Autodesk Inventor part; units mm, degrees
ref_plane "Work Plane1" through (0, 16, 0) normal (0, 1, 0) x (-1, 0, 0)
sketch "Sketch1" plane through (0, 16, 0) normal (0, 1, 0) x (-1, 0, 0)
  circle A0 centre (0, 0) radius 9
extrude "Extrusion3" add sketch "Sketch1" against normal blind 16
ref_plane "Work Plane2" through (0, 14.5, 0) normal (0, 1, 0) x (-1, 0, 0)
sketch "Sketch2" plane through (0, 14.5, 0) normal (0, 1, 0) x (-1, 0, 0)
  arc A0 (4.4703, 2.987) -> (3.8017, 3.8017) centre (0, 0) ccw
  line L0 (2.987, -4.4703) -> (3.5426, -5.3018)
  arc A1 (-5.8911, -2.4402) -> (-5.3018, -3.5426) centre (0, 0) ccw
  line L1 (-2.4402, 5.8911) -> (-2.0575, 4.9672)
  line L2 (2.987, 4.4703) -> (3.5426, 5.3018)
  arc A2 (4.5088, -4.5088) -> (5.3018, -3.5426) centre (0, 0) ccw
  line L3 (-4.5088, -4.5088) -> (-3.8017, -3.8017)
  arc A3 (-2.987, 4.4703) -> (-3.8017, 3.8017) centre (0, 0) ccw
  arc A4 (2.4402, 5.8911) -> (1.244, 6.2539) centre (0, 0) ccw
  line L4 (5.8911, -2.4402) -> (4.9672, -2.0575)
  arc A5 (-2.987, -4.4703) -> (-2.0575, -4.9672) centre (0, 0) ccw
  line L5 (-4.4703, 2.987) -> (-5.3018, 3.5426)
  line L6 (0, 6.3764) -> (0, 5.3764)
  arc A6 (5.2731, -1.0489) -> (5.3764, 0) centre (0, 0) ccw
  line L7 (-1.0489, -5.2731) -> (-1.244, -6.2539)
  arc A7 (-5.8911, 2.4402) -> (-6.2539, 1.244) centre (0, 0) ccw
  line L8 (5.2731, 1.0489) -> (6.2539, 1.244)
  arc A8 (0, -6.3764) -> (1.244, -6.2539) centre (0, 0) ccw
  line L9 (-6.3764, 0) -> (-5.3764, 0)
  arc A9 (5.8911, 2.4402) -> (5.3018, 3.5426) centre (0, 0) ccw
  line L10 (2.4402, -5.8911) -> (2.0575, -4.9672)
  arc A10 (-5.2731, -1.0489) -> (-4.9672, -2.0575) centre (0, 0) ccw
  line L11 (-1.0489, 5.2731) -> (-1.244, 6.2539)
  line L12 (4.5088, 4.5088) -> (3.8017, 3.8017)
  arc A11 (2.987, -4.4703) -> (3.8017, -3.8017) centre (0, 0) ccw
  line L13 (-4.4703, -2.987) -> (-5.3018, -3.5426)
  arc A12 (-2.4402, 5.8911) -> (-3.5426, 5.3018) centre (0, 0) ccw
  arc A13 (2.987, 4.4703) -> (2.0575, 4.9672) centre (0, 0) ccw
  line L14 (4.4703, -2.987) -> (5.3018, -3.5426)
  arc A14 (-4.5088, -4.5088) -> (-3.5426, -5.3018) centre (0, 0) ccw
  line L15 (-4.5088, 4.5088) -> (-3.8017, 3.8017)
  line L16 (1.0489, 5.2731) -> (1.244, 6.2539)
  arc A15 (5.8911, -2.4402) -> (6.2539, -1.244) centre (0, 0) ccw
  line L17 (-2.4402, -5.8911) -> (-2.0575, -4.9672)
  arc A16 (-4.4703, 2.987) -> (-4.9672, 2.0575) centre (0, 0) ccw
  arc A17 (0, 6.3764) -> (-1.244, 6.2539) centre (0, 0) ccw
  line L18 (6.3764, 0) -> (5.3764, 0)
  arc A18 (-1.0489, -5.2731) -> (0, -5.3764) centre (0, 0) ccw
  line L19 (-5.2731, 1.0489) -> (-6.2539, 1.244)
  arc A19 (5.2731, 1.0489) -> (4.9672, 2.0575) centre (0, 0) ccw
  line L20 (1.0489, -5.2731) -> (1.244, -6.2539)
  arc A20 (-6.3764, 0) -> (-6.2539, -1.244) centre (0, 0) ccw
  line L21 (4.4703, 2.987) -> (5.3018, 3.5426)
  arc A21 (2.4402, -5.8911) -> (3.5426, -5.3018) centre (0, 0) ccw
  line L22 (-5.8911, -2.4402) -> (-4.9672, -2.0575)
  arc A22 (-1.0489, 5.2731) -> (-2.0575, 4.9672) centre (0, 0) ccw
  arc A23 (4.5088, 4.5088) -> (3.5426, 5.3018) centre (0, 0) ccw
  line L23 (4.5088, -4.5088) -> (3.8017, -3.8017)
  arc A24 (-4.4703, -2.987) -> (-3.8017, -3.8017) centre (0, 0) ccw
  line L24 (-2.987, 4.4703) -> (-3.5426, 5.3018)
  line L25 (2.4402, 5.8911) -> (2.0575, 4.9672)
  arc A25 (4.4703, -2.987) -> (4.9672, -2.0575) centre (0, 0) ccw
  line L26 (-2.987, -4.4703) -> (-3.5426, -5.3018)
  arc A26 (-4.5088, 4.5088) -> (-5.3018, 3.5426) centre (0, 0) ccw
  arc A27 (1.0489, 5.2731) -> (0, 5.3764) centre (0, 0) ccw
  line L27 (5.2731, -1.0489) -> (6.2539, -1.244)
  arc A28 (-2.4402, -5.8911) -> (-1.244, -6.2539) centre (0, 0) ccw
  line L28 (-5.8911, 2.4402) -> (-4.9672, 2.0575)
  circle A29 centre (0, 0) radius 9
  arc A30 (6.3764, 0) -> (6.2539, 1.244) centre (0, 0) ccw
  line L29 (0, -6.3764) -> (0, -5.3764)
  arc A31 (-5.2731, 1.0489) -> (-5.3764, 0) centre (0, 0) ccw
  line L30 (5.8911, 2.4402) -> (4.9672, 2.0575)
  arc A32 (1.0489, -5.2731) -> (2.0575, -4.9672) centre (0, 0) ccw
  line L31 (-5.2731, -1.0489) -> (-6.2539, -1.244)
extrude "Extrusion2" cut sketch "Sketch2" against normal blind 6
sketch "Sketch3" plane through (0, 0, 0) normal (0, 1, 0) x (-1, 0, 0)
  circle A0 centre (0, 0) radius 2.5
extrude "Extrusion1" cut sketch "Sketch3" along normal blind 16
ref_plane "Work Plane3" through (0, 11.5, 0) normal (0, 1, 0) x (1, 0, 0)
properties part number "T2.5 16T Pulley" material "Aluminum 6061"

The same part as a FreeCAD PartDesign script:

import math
import FreeCAD as App
import Part
import Sketcher
from FreeCAD import Vector
Q = App.Units.Quantity

doc = App.newDocument("Part")
body = doc.addObject("PartDesign::Body", "Body")

# Sketch on XZ plane
sketch1 = body.newObject("Sketcher::SketchObject", "Sketch")
sketch1.AttachmentSupport = (doc.getObject("XZ_Plane"), [""])
sketch1.MapMode = "FlatFace"
sketch1.AttachmentOffset = App.Placement(Vector(0, 0, -16), App.Rotation())
sketch1.addGeometry(Part.Circle(Vector(0, 0, 0), Vector(0, 0, 1), 9), False)
sketch1.addConstraint(Sketcher.Constraint("Coincident", 0, 3, -1, 1))
sketch1.addConstraint(Sketcher.Constraint("Diameter", 0, Q("18 mm")))
pad1 = body.newObject("PartDesign::Pad", "Pad")
pad1.Profile = sketch1
pad1.Length = 16

# Sketch on XZ plane
sketch2 = body.newObject("Sketcher::SketchObject", "Sketch001")
sketch2.AttachmentSupport = (doc.getObject("XZ_Plane"), [""])
sketch2.MapMode = "FlatFace"
sketch2.AttachmentOffset = App.Placement(Vector(0, 0, -14.5), App.Rotation())
sketch2.addGeometry(Part.Circle(Vector(0, 0, 0), Vector(0, 0, 1), 9), False)
sketch2.addGeometry(Part.ArcOfCircle(Part.Circle(Vector(0, 0, 0), Vector(0, 0, 1), 5.376409), math.radians(135), math.radians(146.249636)), False)
sketch2.addGeometry(Part.LineSegment(Vector(-4.4703, 2.987, 0), Vector(-5.3018, 3.5426, 0)), False)
sketch2.addGeometry(Part.ArcOfCircle(Part.Circle(Vector(-0.003956, 0.001871, 0), Vector(0, 0, 1), 6.37212), math.radians(146.243848), math.radians(157.501711)), False)
sketch2.addGeometry(Part.LineSegment(Vector(-5.8911, 2.4402, 0), Vector(-4.9672, 2.0575, 0)), False)
sketch2.addGeometry(Part.ArcOfCircle(Part.Circle(Vector(0.005701, -0.001428, 0), Vector(0, 0, 1), 5.38228), math.radians(157.509), math.radians(168.746771)), False)
sketch2.addGeometry(Part.LineSegment(Vector(-5.2731, 1.0489, 0), Vector(-6.2539, 1.244, 0)), False)
sketch2.addGeometry(Part.ArcOfCircle(Part.Circle(Vector(0.002641, -0.00013, 0), Vector(0, 0, 1), 6.379041), math.radians(168.753292), math.radians(179.998835)), False)
sketch2.addGeometry(Part.LineSegment(Vector(-6.3764, 0, 0), Vector(-5.3764, 0, 0)), False)
sketch2.addGeometry(Part.ArcOfCircle(Part.Circle(Vector(0, 0, 0), Vector(0, 0, 1), 5.376407), math.radians(180), math.radians(191.250159)), False)
sketch2.addGeometry(Part.LineSegment(Vector(-5.2731, -1.0489, 0), Vector(-6.2539, -1.244, 0)), False)
sketch2.addGeometry(Part.ArcOfCircle(Part.Circle(Vector(-0.006395, -0.002288, 0), Vector(0, 0, 1), 6.369707), math.radians(-168.758771), math.radians(-157.496782)), False)
sketch2.addGeometry(Part.LineSegment(Vector(-5.8911, -2.4402, 0), Vector(-4.9672, -2.0575, 0)), False)
sketch2.addGeometry(Part.ArcOfCircle(Part.Circle(Vector(0.005238, 0.00314, 0), Vector(0, 0, 1), 5.382507), math.radians(-157.49028), math.radians(-146.252826)), False)
sketch2.addGeometry(Part.LineSegment(Vector(-4.4703, -2.987, 0), Vector(-5.3018, -3.5426, 0)), False)
sketch2.addGeometry(Part.ArcOfCircle(Part.Circle(Vector(0.003283, 0.002976, 0), Vector(0, 0, 1), 6.380832), math.radians(-146.243785), math.radians(-135.001952)), False)
sketch2.addGeometry(Part.LineSegment(Vector(-4.5088, -4.5088, 0), Vector(-3.8017, -3.8017, 0)), False)
sketch2.addGeometry(Part.ArcOfCircle(Part.Circle(Vector(0, 0, 0), Vector(0, 0, 1), 5.376409), math.radians(-135), math.radians(-123.750364)), False)
sketch2.addGeometry(Part.LineSegment(Vector(-2.987, -4.4703, 0), Vector(-3.5426, -5.3018, 0)), False)
sketch2.addGeometry(Part.ArcOfCircle(Part.Circle(Vector(-0.001871, -0.003956, 0), Vector(0, 0, 1), 6.37212), math.radians(-123.756152), math.radians(-112.498289)), False)
sketch2.addGeometry(Part.LineSegment(Vector(-2.4402, -5.8911, 0), Vector(-2.0575, -4.9672, 0)), False)
sketch2.addGeometry(Part.ArcOfCircle(Part.Circle(Vector(0.001428, 0.005701, 0), Vector(0, 0, 1), 5.38228), math.radians(-112.491), math.radians(-101.253229)), False)
sketch2.addGeometry(Part.LineSegment(Vector(-1.0489, -5.2731, 0), Vector(-1.244, -6.2539, 0)), False)
sketch2.addGeometry(Part.ArcOfCircle(Part.Circle(Vector(0.00013, 0.002641, 0), Vector(0, 0, 1), 6.379041), math.radians(-101.246708), math.radians(-90.001165)), False)
sketch2.addGeometry(Part.LineSegment(Vector(0, -6.3764, 0), Vector(0, -5.3764, 0)), False)
sketch2.addGeometry(Part.ArcOfCircle(Part.Circle(Vector(0, 0, 0), Vector(0, 0, 1), 5.376407), math.radians(-90), math.radians(-78.749841)), False)
sketch2.addGeometry(Part.LineSegment(Vector(1.0489, -5.2731, 0), Vector(1.244, -6.2539, 0)), False)
sketch2.addGeometry(Part.ArcOfCircle(Part.Circle(Vector(0.002288, -0.006395, 0), Vector(0, 0, 1), 6.369707), math.radians(-78.758771), math.radians(-67.496782)), False)
sketch2.addGeometry(Part.LineSegment(Vector(2.4402, -5.8911, 0), Vector(2.0575, -4.9672, 0)), False)
sketch2.addGeometry(Part.ArcOfCircle(Part.Circle(Vector(-0.00314, 0.005238, 0), Vector(0, 0, 1), 5.382507), math.radians(-67.49028), math.radians(-56.252826)), False)
sketch2.addGeometry(Part.LineSegment(Vector(2.987, -4.4703, 0), Vector(3.5426, -5.3018, 0)), False)
sketch2.addGeometry(Part.ArcOfCircle(Part.Circle(Vector(-0.002976, 0.003283, 0), Vector(0, 0, 1), 6.380832), math.radians(-56.243785), math.radians(-45.001952)), False)
sketch2.addGeometry(Part.LineSegment(Vector(4.5088, -4.5088, 0), Vector(3.8017, -3.8017, 0)), False)
sketch2.addGeometry(Part.ArcOfCircle(Part.Circle(Vector(0, 0, 0), Vector(0, 0, 1), 5.376409), math.radians(-45), math.radians(-33.750364)), False)
sketch2.addGeometry(Part.LineSegment(Vector(4.4703, -2.987, 0), Vector(5.3018, -3.5426, 0)), False)
sketch2.addGeometry(Part.ArcOfCircle(Part.Circle(Vector(0.003956, -0.001871, 0), Vector(0, 0, 1), 6.37212), math.radians(-33.756152), math.radians(-22.498289)), False)
sketch2.addGeometry(Part.LineSegment(Vector(5.8911, -2.4402, 0), Vector(4.9672, -2.0575, 0)), False)
sketch2.addGeometry(Part.ArcOfCircle(Part.Circle(Vector(-0.005701, 0.001428, 0), Vector(0, 0, 1), 5.38228), math.radians(-22.491), math.radians(-11.253229)), False)
sketch2.addGeometry(Part.LineSegment(Vector(5.2731, -1.0489, 0), Vector(6.2539, -1.244, 0)), False)
sketch2.addGeometry(Part.ArcOfCircle(Part.Circle(Vector(-0.002641, 0.00013, 0), Vector(0, 0, 1), 6.379041), math.radians(-11.246708), math.radians(-0.001165)), False)
sketch2.addGeometry(Part.LineSegment(Vector(6.3764, 0, 0), Vector(5.3764, 0, 0)), False)
sketch2.addGeometry(Part.ArcOfCircle(Part.Circle(Vector(0, 0, 0), Vector(0, 0, 1), 5.376407), math.radians(0), math.radians(11.250159)), False)
sketch2.addGeometry(Part.LineSegment(Vector(5.2731, 1.0489, 0), Vector(6.2539, 1.244, 0)), False)
sketch2.addGeometry(Part.ArcOfCircle(Part.Circle(Vector(0.006395, 0.002288, 0), Vector(0, 0, 1), 6.369707), math.radians(11.241229), math.radians(22.503218)), False)
sketch2.addGeometry(Part.LineSegment(Vector(5.8911, 2.4402, 0), Vector(4.9672, 2.0575, 0)), False)
sketch2.addGeometry(Part.ArcOfCircle(Part.Circle(Vector(-0.005238, -0.00314, 0), Vector(0, 0, 1), 5.382507), math.radians(22.50972), math.radians(33.747174)), False)
sketch2.addGeometry(Part.LineSegment(Vector(4.4703, 2.987, 0), Vector(5.3018, 3.5426, 0)), False)
sketch2.addGeometry(Part.ArcOfCircle(Part.Circle(Vector(-0.003283, -0.002976, 0), Vector(0, 0, 1), 6.380832), math.radians(33.756215), math.radians(44.998048)), False)
sketch2.addGeometry(Part.LineSegment(Vector(4.5088, 4.5088, 0), Vector(3.8017, 3.8017, 0)), False)
sketch2.addGeometry(Part.ArcOfCircle(Part.Circle(Vector(0, 0, 0), Vector(0, 0, 1), 5.376409), math.radians(45), math.radians(56.249636)), False)
sketch2.addGeometry(Part.LineSegment(Vector(2.987, 4.4703, 0), Vector(3.5426, 5.3018, 0)), False)
sketch2.addGeometry(Part.ArcOfCircle(Part.Circle(Vector(0.001871, 0.003956, 0), Vector(0, 0, 1), 6.37212), math.radians(56.243848), math.radians(67.501711)), False)
sketch2.addGeometry(Part.LineSegment(Vector(2.4402, 5.8911, 0), Vector(2.0575, 4.9672, 0)), False)
sketch2.addGeometry(Part.ArcOfCircle(Part.Circle(Vector(-0.001428, -0.005701, 0), Vector(0, 0, 1), 5.38228), math.radians(67.509), math.radians(78.746771)), False)
sketch2.addGeometry(Part.LineSegment(Vector(1.0489, 5.2731, 0), Vector(1.244, 6.2539, 0)), False)
sketch2.addGeometry(Part.ArcOfCircle(Part.Circle(Vector(-0.00013, -0.002641, 0), Vector(0, 0, 1), 6.379041), math.radians(78.753292), math.radians(89.998835)), False)
sketch2.addGeometry(Part.LineSegment(Vector(0, 6.3764, 0), Vector(0, 5.3764, 0)), False)
sketch2.addGeometry(Part.ArcOfCircle(Part.Circle(Vector(0, 0, 0), Vector(0, 0, 1), 5.376407), math.radians(90), math.radians(101.250159)), False)
sketch2.addGeometry(Part.LineSegment(Vector(-1.0489, 5.2731, 0), Vector(-1.244, 6.2539, 0)), False)
sketch2.addGeometry(Part.ArcOfCircle(Part.Circle(Vector(-0.002288, 0.006395, 0), Vector(0, 0, 1), 6.369707), math.radians(101.241229), math.radians(112.503218)), False)
sketch2.addGeometry(Part.LineSegment(Vector(-2.4402, 5.8911, 0), Vector(-2.0575, 4.9672, 0)), False)
sketch2.addGeometry(Part.ArcOfCircle(Part.Circle(Vector(0.00314, -0.005238, 0), Vector(0, 0, 1), 5.382507), math.radians(112.50972), math.radians(123.747174)), False)
sketch2.addGeometry(Part.LineSegment(Vector(-2.987, 4.4703, 0), Vector(-3.5426, 5.3018, 0)), False)
sketch2.addGeometry(Part.ArcOfCircle(Part.Circle(Vector(0.002976, -0.003283, 0), Vector(0, 0, 1), 6.380832), math.radians(123.756215), math.radians(134.998048)), False)
sketch2.addGeometry(Part.LineSegment(Vector(-4.5088, 4.5088, 0), Vector(-3.8017, 3.8017, 0)), False)
sketch2.addConstraint(Sketcher.Constraint("Coincident", 1, 2, 2, 1))
sketch2.addConstraint(Sketcher.Constraint("Coincident", 2, 2, 3, 1))
sketch2.addConstraint(Sketcher.Constraint("Coincident", 3, 2, 4, 1))
sketch2.addConstraint(Sketcher.Constraint("Coincident", 4, 2, 5, 1))
sketch2.addConstraint(Sketcher.Constraint("Coincident", 5, 2, 6, 1))
sketch2.addConstraint(Sketcher.Constraint("Coincident", 6, 2, 7, 1))
sketch2.addConstraint(Sketcher.Constraint("Coincident", 7, 2, 8, 1))
sketch2.addConstraint(Sketcher.Constraint("Coincident", 8, 2, 9, 1))
sketch2.addConstraint(Sketcher.Constraint("Coincident", 9, 2, 10, 1))
sketch2.addConstraint(Sketcher.Constraint("Coincident", 10, 2, 11, 1))
sketch2.addConstraint(Sketcher.Constraint("Coincident", 11, 2, 12, 1))
sketch2.addConstraint(Sketcher.Constraint("Coincident", 12, 2, 13, 1))
sketch2.addConstraint(Sketcher.Constraint("Coincident", 13, 2, 14, 1))
sketch2.addConstraint(Sketcher.Constraint("Coincident", 14, 2, 15, 1))
sketch2.addConstraint(Sketcher.Constraint("Coincident", 15, 2, 16, 1))
sketch2.addConstraint(Sketcher.Constraint("Coincident", 16, 2, 17, 1))
sketch2.addConstraint(Sketcher.Constraint("Coincident", 17, 2, 18, 1))
sketch2.addConstraint(Sketcher.Constraint("Coincident", 18, 2, 19, 1))
sketch2.addConstraint(Sketcher.Constraint("Coincident", 19, 2, 20, 1))
sketch2.addConstraint(Sketcher.Constraint("Coincident", 20, 2, 21, 1))
sketch2.addConstraint(Sketcher.Constraint("Coincident", 21, 2, 22, 1))
sketch2.addConstraint(Sketcher.Constraint("Coincident", 22, 2, 23, 1))
sketch2.addConstraint(Sketcher.Constraint("Coincident", 23, 2, 24, 1))
sketch2.addConstraint(Sketcher.Constraint("Coincident", 24, 2, 25, 1))
sketch2.addConstraint(Sketcher.Constraint("Coincident", 25, 2, 26, 1))
sketch2.addConstraint(Sketcher.Constraint("Coincident", 26, 2, 27, 1))
sketch2.addConstraint(Sketcher.Constraint("Coincident", 27, 2, 28, 1))
sketch2.addConstraint(Sketcher.Constraint("Coincident", 28, 2, 29, 1))
sketch2.addConstraint(Sketcher.Constraint("Coincident", 29, 2, 30, 1))
sketch2.addConstraint(Sketcher.Constraint("Coincident", 30, 2, 31, 1))
sketch2.addConstraint(Sketcher.Constraint("Coincident", 31, 2, 32, 1))
sketch2.addConstraint(Sketcher.Constraint("Coincident", 32, 2, 33, 1))
sketch2.addConstraint(Sketcher.Constraint("Coincident", 33, 2, 34, 1))
sketch2.addConstraint(Sketcher.Constraint("Coincident", 34, 2, 35, 1))
sketch2.addConstraint(Sketcher.Constraint("Coincident", 35, 2, 36, 1))
sketch2.addConstraint(Sketcher.Constraint("Coincident", 36, 2, 37, 1))
sketch2.addConstraint(Sketcher.Constraint("Coincident", 37, 2, 38, 1))
sketch2.addConstraint(Sketcher.Constraint("Coincident", 38, 2, 39, 1))
sketch2.addConstraint(Sketcher.Constraint("Coincident", 39, 2, 40, 1))
sketch2.addConstraint(Sketcher.Constraint("Coincident", 40, 2, 41, 1))
sketch2.addConstraint(Sketcher.Constraint("Coincident", 41, 2, 42, 1))
sketch2.addConstraint(Sketcher.Constraint("Coincident", 42, 2, 43, 1))
sketch2.addConstraint(Sketcher.Constraint("Coincident", 43, 2, 44, 1))
sketch2.addConstraint(Sketcher.Constraint("Coincident", 44, 2, 45, 1))
sketch2.addConstraint(Sketcher.Constraint("Coincident", 45, 2, 46, 1))
sketch2.addConstraint(Sketcher.Constraint("Coincident", 46, 2, 47, 1))
sketch2.addConstraint(Sketcher.Constraint("Coincident", 47, 2, 48, 1))
sketch2.addConstraint(Sketcher.Constraint("Coincident", 48, 2, 49, 1))
sketch2.addConstraint(Sketcher.Constraint("Coincident", 49, 2, 50, 1))
sketch2.addConstraint(Sketcher.Constraint("Coincident", 50, 2, 51, 1))
sketch2.addConstraint(Sketcher.Constraint("Coincident", 51, 2, 52, 1))
sketch2.addConstraint(Sketcher.Constraint("Coincident", 52, 2, 53, 1))
sketch2.addConstraint(Sketcher.Constraint("Coincident", 53, 2, 54, 1))
sketch2.addConstraint(Sketcher.Constraint("Coincident", 54, 2, 55, 1))
sketch2.addConstraint(Sketcher.Constraint("Coincident", 55, 2, 56, 1))
sketch2.addConstraint(Sketcher.Constraint("Coincident", 56, 2, 57, 1))
sketch2.addConstraint(Sketcher.Constraint("Coincident", 57, 2, 58, 1))
sketch2.addConstraint(Sketcher.Constraint("Coincident", 58, 2, 59, 1))
sketch2.addConstraint(Sketcher.Constraint("Coincident", 59, 2, 60, 1))
sketch2.addConstraint(Sketcher.Constraint("Coincident", 60, 2, 61, 1))
sketch2.addConstraint(Sketcher.Constraint("Coincident", 61, 2, 62, 1))
sketch2.addConstraint(Sketcher.Constraint("Coincident", 62, 2, 63, 1))
sketch2.addConstraint(Sketcher.Constraint("Coincident", 63, 2, 64, 1))
sketch2.addConstraint(Sketcher.Constraint("Coincident", 64, 2, 1, 1))
sketch2.addConstraint(Sketcher.Constraint("Horizontal", 8))
sketch2.addConstraint(Sketcher.Constraint("Vertical", 24))
sketch2.addConstraint(Sketcher.Constraint("Horizontal", 40))
sketch2.addConstraint(Sketcher.Constraint("Vertical", 56))
sketch2.addConstraint(Sketcher.Constraint("Coincident", 0, 3, -1, 1))
sketch2.addConstraint(Sketcher.Constraint("Coincident", 1, 3, -1, 1))
sketch2.addConstraint(Sketcher.Constraint("Coincident", 9, 3, -1, 1))
sketch2.addConstraint(Sketcher.Constraint("Coincident", 17, 3, -1, 1))
sketch2.addConstraint(Sketcher.Constraint("Coincident", 25, 3, -1, 1))
sketch2.addConstraint(Sketcher.Constraint("Coincident", 33, 3, -1, 1))
sketch2.addConstraint(Sketcher.Constraint("Coincident", 41, 3, -1, 1))
sketch2.addConstraint(Sketcher.Constraint("Coincident", 49, 3, -1, 1))
sketch2.addConstraint(Sketcher.Constraint("Coincident", 57, 3, -1, 1))
sketch2.addConstraint(Sketcher.Constraint("PointOnObject", 7, 3, -1))
sketch2.addConstraint(Sketcher.Constraint("PointOnObject", 23, 3, -2))
sketch2.addConstraint(Sketcher.Constraint("PointOnObject", 39, 3, -1))
sketch2.addConstraint(Sketcher.Constraint("PointOnObject", 55, 3, -2))
sketch2.addConstraint(Sketcher.Constraint("PointOnObject", 7, 2, -1))
sketch2.addConstraint(Sketcher.Constraint("PointOnObject", 23, 2, -2))
sketch2.addConstraint(Sketcher.Constraint("PointOnObject", 39, 2, -1))
sketch2.addConstraint(Sketcher.Constraint("PointOnObject", 55, 2, -2))
sketch2.addConstraint(Sketcher.Constraint("Diameter", 0, Q("18 mm")))
sketch2.addConstraint(Sketcher.Constraint("DistanceX", 8, 1, 8, 2, Q("1 mm")))
sketch2.addConstraint(Sketcher.Constraint("DistanceX", 40, 2, 40, 1, Q("1 mm")))
sketch2.addConstraint(Sketcher.Constraint("DistanceY", 24, 1, 24, 2, Q("1 mm")))
sketch2.addConstraint(Sketcher.Constraint("DistanceY", 56, 2, 56, 1, Q("1 mm")))
sketch2.addConstraint(Sketcher.Constraint("Distance", 2, Q("1 mm")))
sketch2.addConstraint(Sketcher.Constraint("Distance", 4, Q("1 mm")))
sketch2.addConstraint(Sketcher.Constraint("Distance", 6, Q("1 mm")))
sketch2.addConstraint(Sketcher.Constraint("Distance", 10, Q("1 mm")))
sketch2.addConstraint(Sketcher.Constraint("Distance", 12, Q("1 mm")))
sketch2.addConstraint(Sketcher.Constraint("Distance", 14, Q("1 mm")))
sketch2.addConstraint(Sketcher.Constraint("Distance", 16, Q("1 mm")))
sketch2.addConstraint(Sketcher.Constraint("Distance", 18, Q("1 mm")))
sketch2.addConstraint(Sketcher.Constraint("Distance", 20, Q("1 mm")))
sketch2.addConstraint(Sketcher.Constraint("Distance", 22, Q("1 mm")))
sketch2.addConstraint(Sketcher.Constraint("Distance", 26, Q("1 mm")))
sketch2.addConstraint(Sketcher.Constraint("Distance", 28, Q("1 mm")))
sketch2.addConstraint(Sketcher.Constraint("Distance", 30, Q("1 mm")))
sketch2.addConstraint(Sketcher.Constraint("Distance", 32, Q("1 mm")))
sketch2.addConstraint(Sketcher.Constraint("Distance", 34, Q("1 mm")))
sketch2.addConstraint(Sketcher.Constraint("Distance", 36, Q("1 mm")))
sketch2.addConstraint(Sketcher.Constraint("Distance", 38, Q("1 mm")))
sketch2.addConstraint(Sketcher.Constraint("Distance", 42, Q("1 mm")))
sketch2.addConstraint(Sketcher.Constraint("Distance", 44, Q("1 mm")))
sketch2.addConstraint(Sketcher.Constraint("Distance", 46, Q("1 mm")))
sketch2.addConstraint(Sketcher.Constraint("Distance", 48, Q("1 mm")))
sketch2.addConstraint(Sketcher.Constraint("Distance", 50, Q("1 mm")))
sketch2.addConstraint(Sketcher.Constraint("Distance", 52, Q("1 mm")))
sketch2.addConstraint(Sketcher.Constraint("Distance", 54, Q("1 mm")))
sketch2.addConstraint(Sketcher.Constraint("Distance", 58, Q("1 mm")))
sketch2.addConstraint(Sketcher.Constraint("Distance", 60, Q("1 mm")))
sketch2.addConstraint(Sketcher.Constraint("Distance", 62, Q("1 mm")))
sketch2.addConstraint(Sketcher.Constraint("Distance", 64, Q("1 mm")))
sketch2.addConstraint(Sketcher.Constraint("Radius", 3, Q("6.372 mm")))
sketch2.addConstraint(Sketcher.Constraint("Radius", 7, Q("6.379 mm")))
sketch2.addConstraint(Sketcher.Constraint("Radius", 19, Q("6.372 mm")))
sketch2.addConstraint(Sketcher.Constraint("Radius", 23, Q("6.379 mm")))
sketch2.addConstraint(Sketcher.Constraint("Radius", 35, Q("6.372 mm")))
sketch2.addConstraint(Sketcher.Constraint("Radius", 39, Q("6.379 mm")))
sketch2.addConstraint(Sketcher.Constraint("Radius", 51, Q("6.372 mm")))
sketch2.addConstraint(Sketcher.Constraint("Radius", 55, Q("6.379 mm")))
sketch2.addConstraint(Sketcher.Constraint("Radius", 1, Q("5.3764 mm")))
sketch2.addConstraint(Sketcher.Constraint("Radius", 5, Q("5.3823 mm")))
sketch2.addConstraint(Sketcher.Constraint("Radius", 9, Q("5.3764 mm")))
sketch2.addConstraint(Sketcher.Constraint("Radius", 11, Q("6.3697 mm")))
sketch2.addConstraint(Sketcher.Constraint("Radius", 13, Q("5.3825 mm")))
sketch2.addConstraint(Sketcher.Constraint("Radius", 15, Q("6.3808 mm")))
sketch2.addConstraint(Sketcher.Constraint("Radius", 17, Q("5.3764 mm")))
sketch2.addConstraint(Sketcher.Constraint("Radius", 21, Q("5.3823 mm")))
sketch2.addConstraint(Sketcher.Constraint("Radius", 25, Q("5.3764 mm")))
sketch2.addConstraint(Sketcher.Constraint("Radius", 27, Q("6.3697 mm")))
sketch2.addConstraint(Sketcher.Constraint("Radius", 29, Q("5.3825 mm")))
sketch2.addConstraint(Sketcher.Constraint("Radius", 31, Q("6.3808 mm")))
sketch2.addConstraint(Sketcher.Constraint("Radius", 33, Q("5.3764 mm")))
sketch2.addConstraint(Sketcher.Constraint("Radius", 37, Q("5.3823 mm")))
sketch2.addConstraint(Sketcher.Constraint("Radius", 41, Q("5.3764 mm")))
sketch2.addConstraint(Sketcher.Constraint("Radius", 43, Q("6.3697 mm")))
sketch2.addConstraint(Sketcher.Constraint("Radius", 45, Q("5.3825 mm")))
sketch2.addConstraint(Sketcher.Constraint("Radius", 47, Q("6.3808 mm")))
sketch2.addConstraint(Sketcher.Constraint("Radius", 49, Q("5.3764 mm")))
sketch2.addConstraint(Sketcher.Constraint("Radius", 53, Q("5.3823 mm")))
sketch2.addConstraint(Sketcher.Constraint("Radius", 57, Q("5.3764 mm")))
sketch2.addConstraint(Sketcher.Constraint("Radius", 59, Q("6.3697 mm")))
sketch2.addConstraint(Sketcher.Constraint("Radius", 61, Q("5.3825 mm")))
sketch2.addConstraint(Sketcher.Constraint("Radius", 63, Q("6.3808 mm")))
sketch2.addConstraint(Sketcher.Constraint("DistanceX", 3, 3, -1, 1, Q("0.004 mm")))
sketch2.addConstraint(Sketcher.Constraint("DistanceY", -1, 1, 15, 3, Q("0.003 mm")))
sketch2.addConstraint(Sketcher.Constraint("DistanceY", 19, 3, -1, 1, Q("0.004 mm")))
sketch2.addConstraint(Sketcher.Constraint("DistanceX", 31, 3, -1, 1, Q("0.003 mm")))
sketch2.addConstraint(Sketcher.Constraint("DistanceX", -1, 1, 35, 3, Q("0.004 mm")))
sketch2.addConstraint(Sketcher.Constraint("DistanceY", 47, 3, -1, 1, Q("0.003 mm")))
sketch2.addConstraint(Sketcher.Constraint("DistanceY", -1, 1, 51, 3, Q("0.004 mm")))
sketch2.addConstraint(Sketcher.Constraint("DistanceX", -1, 1, 63, 3, Q("0.003 mm")))
sketch2.addConstraint(Sketcher.Constraint("DistanceY", -1, 1, 1, 2, Q("2.987 mm")))
sketch2.addConstraint(Sketcher.Constraint("DistanceX", 3, 2, -1, 1, Q("5.891 mm")))
sketch2.addConstraint(Sketcher.Constraint("DistanceX", 5, 2, -1, 1, Q("5.273 mm")))
sketch2.addConstraint(Sketcher.Constraint("DistanceX", 6, 2, -1, 1, Q("6.254 mm")))
sketch2.addConstraint(Sketcher.Constraint("DistanceX", 9, 2, -1, 1, Q("5.273 mm")))
sketch2.addConstraint(Sketcher.Constraint("DistanceX", 10, 2, -1, 1, Q("6.254 mm")))
sketch2.addConstraint(Sketcher.Constraint("DistanceX", 11, 2, -1, 1, Q("5.891 mm")))
sketch2.addConstraint(Sketcher.Constraint("DistanceY", 13, 2, -1, 1, Q("2.987 mm")))
sketch2.addConstraint(Sketcher.Constraint("DistanceX", 17, 2, -1, 1, Q("2.987 mm")))
sketch2.addConstraint(Sketcher.Constraint("DistanceY", 19, 2, -1, 1, Q("5.891 mm")))
sketch2.addConstraint(Sketcher.Constraint("DistanceX", 21, 2, -1, 1, Q("1.049 mm")))
sketch2.addConstraint(Sketcher.Constraint("DistanceX", 22, 2, -1, 1, Q("1.244 mm")))
sketch2.addConstraint(Sketcher.Constraint("DistanceX", -1, 1, 25, 2, Q("1.049 mm")))
sketch2.addConstraint(Sketcher.Constraint("DistanceX", -1, 1, 26, 2, Q("1.244 mm")))
sketch2.addConstraint(Sketcher.Constraint("DistanceY", 27, 2, -1, 1, Q("5.891 mm")))
sketch2.addConstraint(Sketcher.Constraint("DistanceX", -1, 1, 29, 2, Q("2.987 mm")))
sketch2.addConstraint(Sketcher.Constraint("DistanceY", 33, 2, -1, 1, Q("2.987 mm")))
sketch2.addConstraint(Sketcher.Constraint("DistanceX", -1, 1, 35, 2, Q("5.891 mm")))
sketch2.addConstraint(Sketcher.Constraint("DistanceX", -1, 1, 37, 2, Q("5.273 mm")))
sketch2.addConstraint(Sketcher.Constraint("DistanceX", -1, 1, 38, 2, Q("6.254 mm")))
sketch2.addConstraint(Sketcher.Constraint("DistanceX", -1, 1, 41, 2, Q("5.273 mm")))
sketch2.addConstraint(Sketcher.Constraint("DistanceX", -1, 1, 42, 2, Q("6.254 mm")))
sketch2.addConstraint(Sketcher.Constraint("DistanceX", -1, 1, 43, 2, Q("5.891 mm")))
sketch2.addConstraint(Sketcher.Constraint("DistanceY", -1, 1, 45, 2, Q("2.987 mm")))
sketch2.addConstraint(Sketcher.Constraint("DistanceX", -1, 1, 49, 2, Q("2.987 mm")))
sketch2.addConstraint(Sketcher.Constraint("DistanceY", -1, 1, 51, 2, Q("5.891 mm")))
sketch2.addConstraint(Sketcher.Constraint("DistanceX", -1, 1, 53, 2, Q("1.049 mm")))
sketch2.addConstraint(Sketcher.Constraint("DistanceX", -1, 1, 54, 2, Q("1.244 mm")))
sketch2.addConstraint(Sketcher.Constraint("DistanceX", 57, 2, -1, 1, Q("1.049 mm")))
sketch2.addConstraint(Sketcher.Constraint("DistanceX", 58, 2, -1, 1, Q("1.244 mm")))
sketch2.addConstraint(Sketcher.Constraint("DistanceY", -1, 1, 59, 2, Q("5.891 mm")))
sketch2.addConstraint(Sketcher.Constraint("DistanceX", 61, 2, -1, 1, Q("2.987 mm")))
sketch2.addConstraint(Sketcher.Constraint("DistanceX", 11, 3, -1, 1, Q("0.0064 mm")))
sketch2.addConstraint(Sketcher.Constraint("DistanceX", -1, 1, 27, 3, Q("0.0023 mm")))
sketch2.addConstraint(Sketcher.Constraint("DistanceX", -1, 1, 43, 3, Q("0.0064 mm")))
sketch2.addConstraint(Sketcher.Constraint("DistanceX", 59, 3, -1, 1, Q("0.0023 mm")))
sketch2.addConstraint(Sketcher.Constraint("DistanceX", 2, 2, -1, 1, Q("5.3018 mm")))
sketch2.addConstraint(Sketcher.Constraint("DistanceX", 4, 2, -1, 1, Q("4.9672 mm")))
sketch2.addConstraint(Sketcher.Constraint("DistanceX", 12, 2, -1, 1, Q("4.9672 mm")))
sketch2.addConstraint(Sketcher.Constraint("DistanceX", 14, 2, -1, 1, Q("5.3018 mm")))
sketch2.addConstraint(Sketcher.Constraint("DistanceX", 15, 2, -1, 1, Q("4.5088 mm")))
sketch2.addConstraint(Sketcher.Constraint("DistanceX", 16, 2, -1, 1, Q("3.8017 mm")))
sketch2.addConstraint(Sketcher.Constraint("DistanceX", 18, 2, -1, 1, Q("3.5426 mm")))
sketch2.addConstraint(Sketcher.Constraint("DistanceX", 20, 2, -1, 1, Q("2.0575 mm")))
sketch2.addConstraint(Sketcher.Constraint("DistanceX", -1, 1, 28, 2, Q("2.0575 mm")))
sketch2.addConstraint(Sketcher.Constraint("DistanceX", -1, 1, 30, 2, Q("3.5426 mm")))
sketch2.addConstraint(Sketcher.Constraint("DistanceX", -1, 1, 31, 2, Q("4.5088 mm")))
sketch2.addConstraint(Sketcher.Constraint("DistanceX", -1, 1, 32, 2, Q("3.8017 mm")))
sketch2.addConstraint(Sketcher.Constraint("DistanceX", -1, 1, 34, 2, Q("5.3018 mm")))
sketch2.addConstraint(Sketcher.Constraint("DistanceX", -1, 1, 36, 2, Q("4.9672 mm")))
sketch2.addConstraint(Sketcher.Constraint("DistanceX", -1, 1, 44, 2, Q("4.9672 mm")))
sketch2.addConstraint(Sketcher.Constraint("DistanceX", -1, 1, 46, 2, Q("5.3018 mm")))
sketch2.addConstraint(Sketcher.Constraint("DistanceX", -1, 1, 47, 2, Q("4.5088 mm")))
sketch2.addConstraint(Sketcher.Constraint("DistanceX", -1, 1, 48, 2, Q("3.8017 mm")))
sketch2.addConstraint(Sketcher.Constraint("DistanceX", -1, 1, 50, 2, Q("3.5426 mm")))
sketch2.addConstraint(Sketcher.Constraint("DistanceX", -1, 1, 52, 2, Q("2.0575 mm")))
sketch2.addConstraint(Sketcher.Constraint("DistanceX", 60, 2, -1, 1, Q("2.0575 mm")))
sketch2.addConstraint(Sketcher.Constraint("DistanceX", 62, 2, -1, 1, Q("3.5426 mm")))
sketch2.addConstraint(Sketcher.Constraint("DistanceX", 63, 2, -1, 1, Q("4.5088 mm")))
sketch2.addConstraint(Sketcher.Constraint("DistanceX", 64, 2, -1, 1, Q("3.8017 mm")))
pocket1 = body.newObject("PartDesign::Pocket", "Pocket")
pocket1.Profile = sketch2
pocket1.Length = 6
pocket1.Reversed = True

# Sketch on XZ plane
sketch3 = body.newObject("Sketcher::SketchObject", "Sketch002")
sketch3.AttachmentSupport = (doc.getObject("XZ_Plane"), [""])
sketch3.MapMode = "FlatFace"
sketch3.addGeometry(Part.Circle(Vector(0, 0, 0), Vector(0, 0, 1), 2.5), False)
sketch3.addConstraint(Sketcher.Constraint("Coincident", 0, 3, -1, 1))
sketch3.addConstraint(Sketcher.Constraint("Diameter", 0, Q("5 mm")))
pocket2 = body.newObject("PartDesign::Pocket", "Pocket001")
pocket2.Profile = sketch3
pocket2.Length = 16

doc.recompute()
